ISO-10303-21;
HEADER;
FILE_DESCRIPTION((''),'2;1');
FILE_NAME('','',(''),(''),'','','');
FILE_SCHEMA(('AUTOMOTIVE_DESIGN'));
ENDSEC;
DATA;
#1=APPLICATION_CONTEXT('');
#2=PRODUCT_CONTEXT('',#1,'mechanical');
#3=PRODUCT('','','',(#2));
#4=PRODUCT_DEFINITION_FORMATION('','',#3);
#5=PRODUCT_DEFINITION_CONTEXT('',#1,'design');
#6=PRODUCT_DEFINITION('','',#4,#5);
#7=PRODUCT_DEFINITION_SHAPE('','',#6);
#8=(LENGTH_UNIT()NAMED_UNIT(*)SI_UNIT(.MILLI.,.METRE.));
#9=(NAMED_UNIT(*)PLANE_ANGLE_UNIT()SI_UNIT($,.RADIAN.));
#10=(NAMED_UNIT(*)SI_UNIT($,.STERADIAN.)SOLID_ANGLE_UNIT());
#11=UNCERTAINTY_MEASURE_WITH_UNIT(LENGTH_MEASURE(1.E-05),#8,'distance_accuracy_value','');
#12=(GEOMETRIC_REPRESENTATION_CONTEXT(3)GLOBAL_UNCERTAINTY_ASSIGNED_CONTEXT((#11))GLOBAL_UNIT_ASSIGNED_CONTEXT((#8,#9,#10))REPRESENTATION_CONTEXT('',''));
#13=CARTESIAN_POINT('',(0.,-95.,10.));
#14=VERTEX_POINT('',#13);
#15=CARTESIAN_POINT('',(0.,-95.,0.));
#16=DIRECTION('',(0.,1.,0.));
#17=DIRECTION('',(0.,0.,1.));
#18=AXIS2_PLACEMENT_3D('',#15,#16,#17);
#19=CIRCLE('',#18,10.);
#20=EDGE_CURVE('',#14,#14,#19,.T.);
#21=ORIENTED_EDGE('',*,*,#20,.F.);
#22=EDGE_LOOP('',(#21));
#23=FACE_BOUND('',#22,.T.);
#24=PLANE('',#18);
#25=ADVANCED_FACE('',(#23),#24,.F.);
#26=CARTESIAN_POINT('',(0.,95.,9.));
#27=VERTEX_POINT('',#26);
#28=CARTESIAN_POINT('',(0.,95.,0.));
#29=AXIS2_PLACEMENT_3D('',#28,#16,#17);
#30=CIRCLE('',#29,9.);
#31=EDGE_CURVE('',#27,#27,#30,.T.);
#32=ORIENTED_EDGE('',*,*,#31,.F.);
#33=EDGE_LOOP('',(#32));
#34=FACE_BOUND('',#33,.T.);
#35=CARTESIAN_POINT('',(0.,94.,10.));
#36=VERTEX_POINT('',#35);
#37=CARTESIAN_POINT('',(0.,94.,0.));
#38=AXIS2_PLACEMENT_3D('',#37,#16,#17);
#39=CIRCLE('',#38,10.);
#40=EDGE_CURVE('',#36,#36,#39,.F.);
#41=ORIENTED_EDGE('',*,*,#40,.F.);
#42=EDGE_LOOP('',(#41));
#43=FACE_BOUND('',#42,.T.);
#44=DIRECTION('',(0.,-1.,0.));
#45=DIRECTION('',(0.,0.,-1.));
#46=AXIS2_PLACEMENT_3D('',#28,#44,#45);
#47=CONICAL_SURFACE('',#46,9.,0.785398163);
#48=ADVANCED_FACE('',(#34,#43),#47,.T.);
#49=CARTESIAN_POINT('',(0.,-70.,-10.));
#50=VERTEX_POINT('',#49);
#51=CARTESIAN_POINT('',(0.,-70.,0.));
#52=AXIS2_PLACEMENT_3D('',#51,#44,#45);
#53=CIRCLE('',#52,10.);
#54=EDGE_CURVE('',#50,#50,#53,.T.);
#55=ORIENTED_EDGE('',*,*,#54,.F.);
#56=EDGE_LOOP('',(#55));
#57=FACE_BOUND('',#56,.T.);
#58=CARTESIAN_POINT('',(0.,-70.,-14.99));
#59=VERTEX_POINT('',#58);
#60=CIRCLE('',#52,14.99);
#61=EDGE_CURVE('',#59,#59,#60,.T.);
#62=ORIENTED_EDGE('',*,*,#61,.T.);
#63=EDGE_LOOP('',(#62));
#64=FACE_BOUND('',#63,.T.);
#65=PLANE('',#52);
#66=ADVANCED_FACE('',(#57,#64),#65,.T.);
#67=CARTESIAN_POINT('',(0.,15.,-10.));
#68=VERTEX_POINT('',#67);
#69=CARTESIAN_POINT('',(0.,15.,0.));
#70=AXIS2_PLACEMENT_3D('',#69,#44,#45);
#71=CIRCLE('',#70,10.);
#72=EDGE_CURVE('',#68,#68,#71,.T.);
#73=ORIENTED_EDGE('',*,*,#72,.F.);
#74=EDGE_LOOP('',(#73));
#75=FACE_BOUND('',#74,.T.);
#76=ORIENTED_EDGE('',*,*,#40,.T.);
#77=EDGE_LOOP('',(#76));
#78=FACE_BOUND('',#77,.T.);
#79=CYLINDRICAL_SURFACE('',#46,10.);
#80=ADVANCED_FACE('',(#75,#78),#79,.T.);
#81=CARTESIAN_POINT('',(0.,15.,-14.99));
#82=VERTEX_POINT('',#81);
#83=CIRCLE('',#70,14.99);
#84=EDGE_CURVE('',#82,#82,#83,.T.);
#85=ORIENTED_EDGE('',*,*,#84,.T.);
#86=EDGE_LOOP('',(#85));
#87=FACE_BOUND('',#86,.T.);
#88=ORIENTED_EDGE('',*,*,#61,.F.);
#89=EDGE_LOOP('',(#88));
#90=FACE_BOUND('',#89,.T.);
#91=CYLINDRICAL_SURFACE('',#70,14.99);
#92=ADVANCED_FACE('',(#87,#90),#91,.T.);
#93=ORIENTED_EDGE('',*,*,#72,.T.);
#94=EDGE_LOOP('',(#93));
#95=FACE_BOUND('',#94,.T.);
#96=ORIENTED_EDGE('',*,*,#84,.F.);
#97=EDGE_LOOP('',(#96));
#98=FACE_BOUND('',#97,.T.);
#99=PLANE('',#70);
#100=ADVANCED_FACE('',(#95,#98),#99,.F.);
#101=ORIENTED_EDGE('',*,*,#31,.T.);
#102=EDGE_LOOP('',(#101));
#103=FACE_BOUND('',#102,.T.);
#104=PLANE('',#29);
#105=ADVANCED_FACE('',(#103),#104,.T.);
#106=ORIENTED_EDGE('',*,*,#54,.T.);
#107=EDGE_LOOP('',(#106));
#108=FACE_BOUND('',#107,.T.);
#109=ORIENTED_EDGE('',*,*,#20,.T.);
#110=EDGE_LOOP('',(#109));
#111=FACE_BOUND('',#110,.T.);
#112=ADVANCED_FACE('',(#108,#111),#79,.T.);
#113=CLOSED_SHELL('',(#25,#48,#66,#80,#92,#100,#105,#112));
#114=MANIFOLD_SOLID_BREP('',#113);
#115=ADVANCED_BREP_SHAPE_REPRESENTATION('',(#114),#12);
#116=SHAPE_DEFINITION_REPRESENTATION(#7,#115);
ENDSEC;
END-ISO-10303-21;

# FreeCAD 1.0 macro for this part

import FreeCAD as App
import Part
import Sketcher
from FreeCAD import Vector
Q = App.Units.Quantity


def edges_at(feature, points):
    """Names of the edges that pass closest to the given points."""
    edges = feature.Shape.Edges
    near = lambda p: min(range(len(edges)), key=lambda i: edges[i].distToShape(Part.Vertex(*p))[0])
    return sorted({f"Edge{near(p) + 1}" for p in points})

doc = App.newDocument("Part")
body = doc.addObject("PartDesign::Body", "Body")

# Sketch on XZ plane
sketch1 = body.newObject("Sketcher::SketchObject", "Sketch")
sketch1.AttachmentSupport = (doc.getObject("XZ_Plane"), [""])
sketch1.MapMode = "FlatFace"
sketch1.addGeometry(Part.Circle(Vector(0, 0, 0), Vector(0, 0, 1), 10), False)
sketch1.addConstraint([
    Sketcher.Constraint("Coincident", 0, 3, -1, 1),
    Sketcher.Constraint("Diameter", 0, Q("20 mm")),
])
pad1 = body.newObject("PartDesign::Pad", "Pad")
pad1.Profile = sketch1
pad1.Length = 190
pad1.Midplane = True

# Sketch on XZ plane
sketch2 = body.newObject("Sketcher::SketchObject", "Sketch001")
sketch2.AttachmentSupport = (doc.getObject("XZ_Plane"), [""])
sketch2.MapMode = "FlatFace"
sketch2.AttachmentOffset = App.Placement(Vector(0, 0, 70), App.Rotation())
sketch2.addGeometry(Part.Circle(Vector(0, 0, 0), Vector(0, 0, 1), 14.99), False)
sketch2.addConstraint([
    Sketcher.Constraint("Coincident", 0, 3, -1, 1),
    Sketcher.Constraint("Diameter", 0, Q("29.98 mm")),
])
pad2 = body.newObject("PartDesign::Pad", "Pad001")
pad2.Profile = sketch2
pad2.Length = 85
pad2.Reversed = True
doc.recompute()

chamfer = body.newObject("PartDesign::Chamfer", "Chamfer")
chamfer.Base = (pad2, edges_at(pad2, [(-10, 95, 0)]))
chamfer.Size = 1

doc.recompute()
